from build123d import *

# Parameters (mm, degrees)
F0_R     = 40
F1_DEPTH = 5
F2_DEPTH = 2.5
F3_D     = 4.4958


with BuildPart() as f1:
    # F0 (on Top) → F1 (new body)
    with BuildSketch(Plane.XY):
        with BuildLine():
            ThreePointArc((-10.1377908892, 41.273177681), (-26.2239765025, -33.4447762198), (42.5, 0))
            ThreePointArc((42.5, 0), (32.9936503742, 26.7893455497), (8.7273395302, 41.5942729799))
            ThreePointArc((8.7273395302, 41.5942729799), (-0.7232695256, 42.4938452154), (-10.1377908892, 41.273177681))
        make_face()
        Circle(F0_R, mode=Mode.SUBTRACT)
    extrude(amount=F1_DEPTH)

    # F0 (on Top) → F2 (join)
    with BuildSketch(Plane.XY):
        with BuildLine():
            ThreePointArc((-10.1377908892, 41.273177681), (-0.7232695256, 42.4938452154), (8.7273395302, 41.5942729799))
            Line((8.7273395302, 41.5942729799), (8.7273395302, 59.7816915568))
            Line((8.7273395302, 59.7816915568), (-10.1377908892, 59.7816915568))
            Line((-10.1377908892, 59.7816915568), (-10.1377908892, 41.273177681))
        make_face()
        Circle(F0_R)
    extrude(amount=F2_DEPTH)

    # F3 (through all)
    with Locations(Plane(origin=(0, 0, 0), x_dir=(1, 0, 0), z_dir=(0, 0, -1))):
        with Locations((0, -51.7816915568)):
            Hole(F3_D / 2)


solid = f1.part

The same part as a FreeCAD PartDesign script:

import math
import FreeCAD as App
import Part
import Sketcher

V = App.Vector

doc = App.newDocument("Part")
body = doc.addObject("PartDesign::Body", "Body")

# Sketch on XY plane
sketch1 = body.newObject("Sketcher::SketchObject", "Sketch")
sketch1.AttachmentSupport = (doc.getObject("XY_Plane"), [""])
sketch1.MapMode = "FlatFace"
sketch1.addGeometry([
    Part.ArcOfCircle(Part.Circle(V(0, 0, 0), V(0, 0, 1), 42.5), math.radians(103.800165), math.radians(360)),
    Part.ArcOfCircle(Part.Circle(V(0, 0, 0), V(0, 0, 1), 42.5), math.radians(0), math.radians(78.15006)),
    Part.ArcOfCircle(Part.Circle(V(0, 0, 0), V(0, 0, 1), 42.5), math.radians(78.15006), math.radians(103.800165)),
    Part.Circle(V(0, 0, 0), V(0, 0, 1), 40),
], False)
sketch1.addConstraint([
    Sketcher.Constraint("Tangent", 0, 2, 1, 1),
    Sketcher.Constraint("Tangent", 1, 2, 2, 1),
    Sketcher.Constraint("Tangent", 2, 2, 0, 1),
    Sketcher.Constraint("Coincident", 0, 3, -1, 1),
    Sketcher.Constraint("Coincident", 3, 3, -1, 1),
    Sketcher.Constraint("PointOnObject", 0, 2, -1),
    Sketcher.Constraint("Diameter", 3, 80.0),
    Sketcher.Constraint("Radius", 0, 42.5),
    Sketcher.Constraint("DistanceX", -1, 1, 1, 2, 8.72734),
    Sketcher.Constraint("DistanceX", 2, 2, -1, 1, 10.137791),
])
pad1 = body.newObject("PartDesign::Pad", "Pad")
pad1.Profile = sketch1
pad1.Length = 5

# Sketch on XY plane
sketch2 = body.newObject("Sketcher::SketchObject", "Sketch001")
sketch2.AttachmentSupport = (doc.getObject("XY_Plane"), [""])
sketch2.MapMode = "FlatFace"
sketch2.addGeometry([
    Part.ArcOfCircle(Part.Circle(V(0, 0, 0), V(0, 0, 1), 42.5), math.radians(78.15006), math.radians(103.800165)),  # 0
    Part.LineSegment(V(8.72734, 41.594273, 0), V(8.72734, 59.781692, 0)),  # 1
    Part.LineSegment(V(8.72734, 59.781692, 0), V(-10.137791, 59.781692, 0)),  # 2
    Part.LineSegment(V(-10.137791, 59.781692, 0), V(-10.137791, 41.273178, 0)),  # 3
    Part.Circle(V(0, 0, 0), V(0, 0, 1), 40),  # 4
], False)
sketch2.addConstraint([
    Sketcher.Constraint("Coincident", 0, 1, 1, 1),
    Sketcher.Constraint("Coincident", 1, 2, 2, 1),
    Sketcher.Constraint("Coincident", 2, 2, 3, 1),
    Sketcher.Constraint("Coincident", 3, 2, 0, 2),
    Sketcher.Constraint("Vertical", 1),
    Sketcher.Constraint("Horizontal", 2),
    Sketcher.Constraint("Vertical", 3),
    Sketcher.Constraint("Coincident", 0, 3, -1, 1),
    Sketcher.Constraint("Coincident", 4, 3, -1, 1),
    Sketcher.Constraint("Diameter", 4, 80.0),
    Sketcher.Constraint("Radius", 0, 42.5),
    Sketcher.Constraint("DistanceX", 2, 2, 2, 1, 18.86513),
    Sketcher.Constraint("DistanceY", 1, 1, 1, 2, 18.187419),
    Sketcher.Constraint("DistanceY", 3, 2, 3, 1, 18.508514),
])
pad2 = body.newObject("PartDesign::Pad", "Pad001")
pad2.Profile = sketch2
pad2.Length = 2.5

# Sketch on XY plane
sketch3 = body.newObject("Sketcher::SketchObject", "Sketch002")
sketch3.AttachmentSupport = (doc.getObject("XY_Plane"), [""])
sketch3.MapMode = "FlatFace"
sketch3.addGeometry(Part.Circle(V(0, 51.781692, 0), V(0, 0, 1), 2.2479), False)
sketch3.addConstraint([
    Sketcher.Constraint("PointOnObject", 0, 3, -2),
    Sketcher.Constraint("Diameter", 0, 4.4958),
    Sketcher.Constraint("DistanceY", -1, 1, 0, 3, 51.781692),
])
doc.recompute()
hole = body.newObject("PartDesign::Hole", "Hole")
hole.Profile = sketch3
hole.ThreadType = "None"
hole.Diameter = 4.4958
hole.DepthType = "ThroughAll"
hole.Reversed = True

doc.recompute()
